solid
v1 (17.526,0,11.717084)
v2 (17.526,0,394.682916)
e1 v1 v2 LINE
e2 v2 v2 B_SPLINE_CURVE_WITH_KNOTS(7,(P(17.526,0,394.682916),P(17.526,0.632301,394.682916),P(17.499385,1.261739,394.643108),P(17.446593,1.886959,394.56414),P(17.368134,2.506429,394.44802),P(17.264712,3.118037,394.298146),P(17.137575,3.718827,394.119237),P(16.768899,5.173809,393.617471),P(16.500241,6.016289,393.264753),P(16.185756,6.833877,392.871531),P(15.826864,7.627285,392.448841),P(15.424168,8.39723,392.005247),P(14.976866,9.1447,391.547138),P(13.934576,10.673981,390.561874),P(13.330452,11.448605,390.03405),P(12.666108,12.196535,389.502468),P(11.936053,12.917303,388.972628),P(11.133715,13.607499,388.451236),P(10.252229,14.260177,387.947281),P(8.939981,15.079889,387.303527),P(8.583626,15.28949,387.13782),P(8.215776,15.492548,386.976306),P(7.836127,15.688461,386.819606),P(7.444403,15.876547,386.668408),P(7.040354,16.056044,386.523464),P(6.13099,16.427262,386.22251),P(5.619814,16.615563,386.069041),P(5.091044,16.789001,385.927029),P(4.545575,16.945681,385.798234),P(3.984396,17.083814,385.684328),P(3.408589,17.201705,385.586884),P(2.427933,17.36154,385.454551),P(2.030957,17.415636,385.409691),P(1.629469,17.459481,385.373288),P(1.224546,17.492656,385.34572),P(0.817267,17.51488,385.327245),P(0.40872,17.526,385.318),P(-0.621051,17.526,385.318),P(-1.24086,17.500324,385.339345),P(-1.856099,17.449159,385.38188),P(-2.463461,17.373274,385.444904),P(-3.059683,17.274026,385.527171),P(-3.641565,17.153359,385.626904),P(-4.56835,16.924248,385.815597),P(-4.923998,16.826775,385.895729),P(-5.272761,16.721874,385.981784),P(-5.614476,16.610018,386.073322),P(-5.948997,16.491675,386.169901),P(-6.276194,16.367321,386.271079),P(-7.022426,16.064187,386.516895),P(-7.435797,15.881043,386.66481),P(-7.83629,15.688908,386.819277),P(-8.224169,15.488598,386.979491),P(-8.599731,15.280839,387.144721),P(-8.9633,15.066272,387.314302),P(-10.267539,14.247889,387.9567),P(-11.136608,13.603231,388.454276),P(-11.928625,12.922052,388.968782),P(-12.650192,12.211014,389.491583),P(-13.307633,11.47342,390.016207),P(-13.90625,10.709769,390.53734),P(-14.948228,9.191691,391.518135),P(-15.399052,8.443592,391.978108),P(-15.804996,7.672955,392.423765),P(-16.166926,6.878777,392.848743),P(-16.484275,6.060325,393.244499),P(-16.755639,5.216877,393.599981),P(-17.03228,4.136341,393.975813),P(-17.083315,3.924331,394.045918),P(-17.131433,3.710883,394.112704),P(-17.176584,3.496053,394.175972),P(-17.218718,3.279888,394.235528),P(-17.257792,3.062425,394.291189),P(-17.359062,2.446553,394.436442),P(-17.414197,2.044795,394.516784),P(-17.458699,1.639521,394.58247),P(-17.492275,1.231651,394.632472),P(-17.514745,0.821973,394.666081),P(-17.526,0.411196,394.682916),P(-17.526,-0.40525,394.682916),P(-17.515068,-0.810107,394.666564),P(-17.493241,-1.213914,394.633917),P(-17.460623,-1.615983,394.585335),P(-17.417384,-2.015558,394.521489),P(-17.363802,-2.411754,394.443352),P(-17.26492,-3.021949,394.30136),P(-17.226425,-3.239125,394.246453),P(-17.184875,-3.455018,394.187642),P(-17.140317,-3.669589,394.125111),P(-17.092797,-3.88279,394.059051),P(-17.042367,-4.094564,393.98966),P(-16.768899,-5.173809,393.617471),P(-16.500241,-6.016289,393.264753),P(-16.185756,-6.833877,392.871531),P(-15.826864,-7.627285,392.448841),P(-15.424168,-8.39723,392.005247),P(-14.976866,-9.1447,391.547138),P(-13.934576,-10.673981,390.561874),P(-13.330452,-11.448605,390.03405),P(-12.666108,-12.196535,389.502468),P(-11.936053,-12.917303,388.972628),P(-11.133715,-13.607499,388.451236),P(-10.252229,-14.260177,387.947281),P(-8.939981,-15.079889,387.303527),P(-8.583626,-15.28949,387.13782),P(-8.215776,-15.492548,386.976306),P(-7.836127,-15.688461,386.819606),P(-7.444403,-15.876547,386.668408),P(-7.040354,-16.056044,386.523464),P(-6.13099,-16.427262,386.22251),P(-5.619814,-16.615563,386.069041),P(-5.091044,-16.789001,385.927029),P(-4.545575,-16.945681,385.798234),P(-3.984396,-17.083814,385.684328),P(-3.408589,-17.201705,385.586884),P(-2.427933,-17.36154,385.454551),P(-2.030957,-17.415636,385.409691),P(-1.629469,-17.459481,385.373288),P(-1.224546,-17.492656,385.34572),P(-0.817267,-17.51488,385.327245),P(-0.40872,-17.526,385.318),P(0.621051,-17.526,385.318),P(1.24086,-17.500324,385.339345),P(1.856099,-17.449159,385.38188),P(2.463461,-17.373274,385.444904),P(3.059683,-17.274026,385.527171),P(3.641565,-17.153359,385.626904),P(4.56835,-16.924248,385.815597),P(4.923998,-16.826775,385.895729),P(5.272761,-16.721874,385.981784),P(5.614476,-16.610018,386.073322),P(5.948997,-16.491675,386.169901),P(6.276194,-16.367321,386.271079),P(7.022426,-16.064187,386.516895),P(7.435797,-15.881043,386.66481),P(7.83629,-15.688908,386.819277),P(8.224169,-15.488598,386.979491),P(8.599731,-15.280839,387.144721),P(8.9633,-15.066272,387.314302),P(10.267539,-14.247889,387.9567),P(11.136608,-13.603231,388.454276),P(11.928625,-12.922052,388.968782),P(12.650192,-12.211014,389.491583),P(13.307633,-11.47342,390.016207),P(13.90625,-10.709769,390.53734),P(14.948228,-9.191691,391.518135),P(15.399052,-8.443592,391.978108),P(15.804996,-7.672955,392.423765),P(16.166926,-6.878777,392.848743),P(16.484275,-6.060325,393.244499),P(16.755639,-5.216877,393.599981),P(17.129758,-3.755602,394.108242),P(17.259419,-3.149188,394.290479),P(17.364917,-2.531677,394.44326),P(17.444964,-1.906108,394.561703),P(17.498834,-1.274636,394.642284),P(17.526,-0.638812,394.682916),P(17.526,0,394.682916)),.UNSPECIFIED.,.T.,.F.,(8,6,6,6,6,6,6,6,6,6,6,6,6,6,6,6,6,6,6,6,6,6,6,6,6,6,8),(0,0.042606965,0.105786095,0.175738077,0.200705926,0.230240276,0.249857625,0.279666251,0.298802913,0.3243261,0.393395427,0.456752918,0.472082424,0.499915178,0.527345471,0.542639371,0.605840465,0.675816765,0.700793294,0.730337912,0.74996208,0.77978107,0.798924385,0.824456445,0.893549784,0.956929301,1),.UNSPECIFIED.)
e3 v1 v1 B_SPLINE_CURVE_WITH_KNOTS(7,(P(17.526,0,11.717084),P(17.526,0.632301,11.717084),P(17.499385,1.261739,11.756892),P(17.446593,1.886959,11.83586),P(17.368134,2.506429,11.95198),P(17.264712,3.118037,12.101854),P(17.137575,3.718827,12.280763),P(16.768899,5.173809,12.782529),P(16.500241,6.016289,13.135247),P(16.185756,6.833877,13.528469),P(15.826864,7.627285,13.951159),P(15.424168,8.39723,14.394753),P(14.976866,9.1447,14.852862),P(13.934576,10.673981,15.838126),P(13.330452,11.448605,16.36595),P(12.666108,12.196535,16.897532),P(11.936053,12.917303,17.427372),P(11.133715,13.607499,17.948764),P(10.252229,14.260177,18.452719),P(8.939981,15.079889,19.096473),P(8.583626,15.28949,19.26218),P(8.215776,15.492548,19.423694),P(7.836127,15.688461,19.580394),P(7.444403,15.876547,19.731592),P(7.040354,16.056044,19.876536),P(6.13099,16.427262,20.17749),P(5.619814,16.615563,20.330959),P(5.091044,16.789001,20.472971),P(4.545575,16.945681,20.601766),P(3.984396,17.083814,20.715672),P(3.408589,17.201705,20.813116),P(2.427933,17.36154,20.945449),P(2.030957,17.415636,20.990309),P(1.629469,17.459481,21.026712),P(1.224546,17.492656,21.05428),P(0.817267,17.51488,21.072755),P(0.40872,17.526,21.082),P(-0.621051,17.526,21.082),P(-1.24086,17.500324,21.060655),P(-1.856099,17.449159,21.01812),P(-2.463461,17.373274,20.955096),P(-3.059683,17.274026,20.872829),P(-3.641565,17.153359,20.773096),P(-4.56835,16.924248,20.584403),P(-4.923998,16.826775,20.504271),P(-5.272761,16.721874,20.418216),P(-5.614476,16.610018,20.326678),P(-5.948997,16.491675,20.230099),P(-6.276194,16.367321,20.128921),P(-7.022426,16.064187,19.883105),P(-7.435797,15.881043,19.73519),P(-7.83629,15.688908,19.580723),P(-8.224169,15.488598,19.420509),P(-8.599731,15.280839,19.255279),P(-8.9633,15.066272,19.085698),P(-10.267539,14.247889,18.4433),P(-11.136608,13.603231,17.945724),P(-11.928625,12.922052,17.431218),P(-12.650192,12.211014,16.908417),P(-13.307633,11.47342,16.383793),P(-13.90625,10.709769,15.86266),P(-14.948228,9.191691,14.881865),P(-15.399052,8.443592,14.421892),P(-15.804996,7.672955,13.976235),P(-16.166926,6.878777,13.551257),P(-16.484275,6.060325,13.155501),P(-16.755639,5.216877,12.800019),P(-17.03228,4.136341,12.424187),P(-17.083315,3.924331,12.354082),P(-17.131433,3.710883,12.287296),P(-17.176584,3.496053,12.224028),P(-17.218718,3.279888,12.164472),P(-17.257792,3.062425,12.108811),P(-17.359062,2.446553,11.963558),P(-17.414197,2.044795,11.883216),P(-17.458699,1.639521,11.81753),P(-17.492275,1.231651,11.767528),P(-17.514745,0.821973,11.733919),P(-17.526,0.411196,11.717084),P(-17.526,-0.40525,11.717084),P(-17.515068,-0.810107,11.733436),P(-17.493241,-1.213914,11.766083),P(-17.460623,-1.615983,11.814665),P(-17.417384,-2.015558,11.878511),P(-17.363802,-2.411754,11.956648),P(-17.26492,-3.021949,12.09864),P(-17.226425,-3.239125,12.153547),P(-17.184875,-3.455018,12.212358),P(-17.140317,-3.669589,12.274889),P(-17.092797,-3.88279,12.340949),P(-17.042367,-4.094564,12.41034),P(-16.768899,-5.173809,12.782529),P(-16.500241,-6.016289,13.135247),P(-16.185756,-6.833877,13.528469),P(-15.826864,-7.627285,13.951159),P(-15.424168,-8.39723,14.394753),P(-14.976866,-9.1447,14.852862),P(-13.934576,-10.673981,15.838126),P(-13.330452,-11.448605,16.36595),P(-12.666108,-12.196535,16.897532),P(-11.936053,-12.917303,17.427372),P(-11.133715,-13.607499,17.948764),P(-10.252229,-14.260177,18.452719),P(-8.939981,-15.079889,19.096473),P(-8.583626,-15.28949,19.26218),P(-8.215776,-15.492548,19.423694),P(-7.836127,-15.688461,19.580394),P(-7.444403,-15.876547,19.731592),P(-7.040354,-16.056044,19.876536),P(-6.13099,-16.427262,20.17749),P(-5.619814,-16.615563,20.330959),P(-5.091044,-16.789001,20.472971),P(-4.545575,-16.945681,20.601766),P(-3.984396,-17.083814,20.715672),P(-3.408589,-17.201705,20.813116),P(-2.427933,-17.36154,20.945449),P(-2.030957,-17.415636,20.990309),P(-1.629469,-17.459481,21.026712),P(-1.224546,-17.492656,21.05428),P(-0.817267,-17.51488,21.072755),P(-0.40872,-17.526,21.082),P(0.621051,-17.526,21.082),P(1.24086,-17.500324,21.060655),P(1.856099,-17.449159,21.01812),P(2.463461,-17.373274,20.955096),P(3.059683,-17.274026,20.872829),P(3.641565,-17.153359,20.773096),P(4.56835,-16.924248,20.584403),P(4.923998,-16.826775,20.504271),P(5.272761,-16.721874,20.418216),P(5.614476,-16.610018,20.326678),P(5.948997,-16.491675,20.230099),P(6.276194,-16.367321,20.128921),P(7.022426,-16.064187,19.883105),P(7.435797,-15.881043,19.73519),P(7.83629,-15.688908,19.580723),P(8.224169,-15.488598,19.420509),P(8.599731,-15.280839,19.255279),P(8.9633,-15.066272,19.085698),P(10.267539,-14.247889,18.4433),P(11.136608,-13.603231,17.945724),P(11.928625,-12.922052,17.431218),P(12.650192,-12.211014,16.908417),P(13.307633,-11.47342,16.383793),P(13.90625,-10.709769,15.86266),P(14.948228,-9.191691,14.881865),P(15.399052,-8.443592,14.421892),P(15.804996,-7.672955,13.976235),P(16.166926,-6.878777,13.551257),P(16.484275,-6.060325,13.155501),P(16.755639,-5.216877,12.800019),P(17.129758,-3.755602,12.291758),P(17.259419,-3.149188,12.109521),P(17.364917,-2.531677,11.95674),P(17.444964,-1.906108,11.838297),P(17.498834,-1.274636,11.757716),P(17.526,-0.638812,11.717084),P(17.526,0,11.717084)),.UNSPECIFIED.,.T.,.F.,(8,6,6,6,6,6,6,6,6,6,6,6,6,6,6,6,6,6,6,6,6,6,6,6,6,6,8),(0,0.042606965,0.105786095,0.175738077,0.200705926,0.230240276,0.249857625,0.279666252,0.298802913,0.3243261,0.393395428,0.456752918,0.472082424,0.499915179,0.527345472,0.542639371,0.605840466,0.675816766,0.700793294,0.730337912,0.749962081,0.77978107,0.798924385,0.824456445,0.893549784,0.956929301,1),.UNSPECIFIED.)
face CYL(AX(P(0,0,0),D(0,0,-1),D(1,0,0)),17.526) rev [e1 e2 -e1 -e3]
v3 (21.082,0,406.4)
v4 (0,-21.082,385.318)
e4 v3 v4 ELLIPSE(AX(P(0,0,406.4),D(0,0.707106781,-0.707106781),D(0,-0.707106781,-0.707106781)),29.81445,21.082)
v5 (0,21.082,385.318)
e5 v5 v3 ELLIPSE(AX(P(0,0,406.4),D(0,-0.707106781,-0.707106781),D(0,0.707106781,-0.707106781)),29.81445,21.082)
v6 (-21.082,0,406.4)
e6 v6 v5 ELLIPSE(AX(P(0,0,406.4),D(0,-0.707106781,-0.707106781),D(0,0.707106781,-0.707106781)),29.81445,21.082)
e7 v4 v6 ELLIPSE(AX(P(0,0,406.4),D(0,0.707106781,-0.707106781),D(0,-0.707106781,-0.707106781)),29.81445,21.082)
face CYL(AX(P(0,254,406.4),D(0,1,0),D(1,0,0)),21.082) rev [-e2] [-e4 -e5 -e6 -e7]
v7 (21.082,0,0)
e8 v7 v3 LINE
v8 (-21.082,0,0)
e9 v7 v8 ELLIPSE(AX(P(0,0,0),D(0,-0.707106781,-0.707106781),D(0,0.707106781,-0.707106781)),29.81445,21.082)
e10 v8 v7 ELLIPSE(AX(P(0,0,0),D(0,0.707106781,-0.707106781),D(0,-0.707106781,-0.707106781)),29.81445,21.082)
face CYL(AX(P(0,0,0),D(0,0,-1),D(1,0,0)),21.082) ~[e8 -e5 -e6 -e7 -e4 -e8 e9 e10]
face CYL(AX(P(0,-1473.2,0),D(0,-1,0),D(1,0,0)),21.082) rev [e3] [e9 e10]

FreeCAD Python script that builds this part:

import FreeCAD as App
import Part
import Sketcher
from FreeCAD import Vector
Q = App.Units.Quantity

doc = App.newDocument("Part")
body = doc.addObject("PartDesign::Body", "Body")

sketch1 = body.newObject("Sketcher::SketchObject", "Sketch")
sketch1.AttachmentSupport = (doc.getObject("XY_Plane"), [""])
sketch1.MapMode = "FlatFace"
sketch1.addGeometry(Part.Circle(Vector(0, 0, 0), Vector(0, 0, 1), 21), False)
sketch1.addGeometry(Part.Circle(Vector(0, 0, 0), Vector(0, 0, 1), 18), False)
sketch1.addConstraint(Sketcher.Constraint("Coincident", 0, 3, -1, 1))
sketch1.addConstraint(Sketcher.Constraint("Coincident", 1, 3, -1, 1))
sketch1.addConstraint(Sketcher.Constraint("Diameter", 0, Q("1.66 in")))
sketch1.addConstraint(Sketcher.Constraint("Diameter", 1, Q("1.38 in")))
pad1 = body.newObject("PartDesign::Pad", "Pad")
pad1.Profile = sketch1
pad1.Length = Q("16 in")

sketch2 = body.newObject("Sketcher::SketchObject", "Sketch001")
sketch2.AttachmentSupport = (doc.getObject("XZ_Plane"), [""])
sketch2.MapMode = "FlatFace"
sketch2.AttachmentOffset = App.Placement(Vector(0, 0, 58 * 25.4), App.Rotation())
sketch2.addGeometry(Part.Circle(Vector(0, 0, 0), Vector(0, 0, 1), 21), False)
sketch2.addConstraint(Sketcher.Constraint("Coincident", 0, 3, -1, 1))
sketch2.addConstraint(Sketcher.Constraint("Diameter", 0, Q("1.66 in")))
pocket1 = body.newObject("PartDesign::Pocket", "Pocket")
pocket1.Profile = sketch2
pocket1.Length = Q("68 in")

sketch3 = body.newObject("Sketcher::SketchObject", "Sketch002")
sketch3.AttachmentSupport = (doc.getObject("XZ_Plane"), [""])
sketch3.MapMode = "FlatFace"
sketch3.AttachmentOffset = App.Placement(Vector(0, 0, -10 * 25.4), App.Rotation())
sketch3.addGeometry(Part.Circle(Vector(0, 406, 0), Vector(0, 0, 1), 21), False)
sketch3.addConstraint(Sketcher.Constraint("PointOnObject", 0, 3, -2))
sketch3.addConstraint(Sketcher.Constraint("Diameter", 0, Q("1.66 in")))
sketch3.addConstraint(Sketcher.Constraint("DistanceY", -1, 1, 0, 3, Q("16 in")))
pocket2 = body.newObject("PartDesign::Pocket", "Pocket001")
pocket2.Profile = sketch3
pocket2.Length = Q("68 in")
pocket2.Reversed = True

doc.recompute()
